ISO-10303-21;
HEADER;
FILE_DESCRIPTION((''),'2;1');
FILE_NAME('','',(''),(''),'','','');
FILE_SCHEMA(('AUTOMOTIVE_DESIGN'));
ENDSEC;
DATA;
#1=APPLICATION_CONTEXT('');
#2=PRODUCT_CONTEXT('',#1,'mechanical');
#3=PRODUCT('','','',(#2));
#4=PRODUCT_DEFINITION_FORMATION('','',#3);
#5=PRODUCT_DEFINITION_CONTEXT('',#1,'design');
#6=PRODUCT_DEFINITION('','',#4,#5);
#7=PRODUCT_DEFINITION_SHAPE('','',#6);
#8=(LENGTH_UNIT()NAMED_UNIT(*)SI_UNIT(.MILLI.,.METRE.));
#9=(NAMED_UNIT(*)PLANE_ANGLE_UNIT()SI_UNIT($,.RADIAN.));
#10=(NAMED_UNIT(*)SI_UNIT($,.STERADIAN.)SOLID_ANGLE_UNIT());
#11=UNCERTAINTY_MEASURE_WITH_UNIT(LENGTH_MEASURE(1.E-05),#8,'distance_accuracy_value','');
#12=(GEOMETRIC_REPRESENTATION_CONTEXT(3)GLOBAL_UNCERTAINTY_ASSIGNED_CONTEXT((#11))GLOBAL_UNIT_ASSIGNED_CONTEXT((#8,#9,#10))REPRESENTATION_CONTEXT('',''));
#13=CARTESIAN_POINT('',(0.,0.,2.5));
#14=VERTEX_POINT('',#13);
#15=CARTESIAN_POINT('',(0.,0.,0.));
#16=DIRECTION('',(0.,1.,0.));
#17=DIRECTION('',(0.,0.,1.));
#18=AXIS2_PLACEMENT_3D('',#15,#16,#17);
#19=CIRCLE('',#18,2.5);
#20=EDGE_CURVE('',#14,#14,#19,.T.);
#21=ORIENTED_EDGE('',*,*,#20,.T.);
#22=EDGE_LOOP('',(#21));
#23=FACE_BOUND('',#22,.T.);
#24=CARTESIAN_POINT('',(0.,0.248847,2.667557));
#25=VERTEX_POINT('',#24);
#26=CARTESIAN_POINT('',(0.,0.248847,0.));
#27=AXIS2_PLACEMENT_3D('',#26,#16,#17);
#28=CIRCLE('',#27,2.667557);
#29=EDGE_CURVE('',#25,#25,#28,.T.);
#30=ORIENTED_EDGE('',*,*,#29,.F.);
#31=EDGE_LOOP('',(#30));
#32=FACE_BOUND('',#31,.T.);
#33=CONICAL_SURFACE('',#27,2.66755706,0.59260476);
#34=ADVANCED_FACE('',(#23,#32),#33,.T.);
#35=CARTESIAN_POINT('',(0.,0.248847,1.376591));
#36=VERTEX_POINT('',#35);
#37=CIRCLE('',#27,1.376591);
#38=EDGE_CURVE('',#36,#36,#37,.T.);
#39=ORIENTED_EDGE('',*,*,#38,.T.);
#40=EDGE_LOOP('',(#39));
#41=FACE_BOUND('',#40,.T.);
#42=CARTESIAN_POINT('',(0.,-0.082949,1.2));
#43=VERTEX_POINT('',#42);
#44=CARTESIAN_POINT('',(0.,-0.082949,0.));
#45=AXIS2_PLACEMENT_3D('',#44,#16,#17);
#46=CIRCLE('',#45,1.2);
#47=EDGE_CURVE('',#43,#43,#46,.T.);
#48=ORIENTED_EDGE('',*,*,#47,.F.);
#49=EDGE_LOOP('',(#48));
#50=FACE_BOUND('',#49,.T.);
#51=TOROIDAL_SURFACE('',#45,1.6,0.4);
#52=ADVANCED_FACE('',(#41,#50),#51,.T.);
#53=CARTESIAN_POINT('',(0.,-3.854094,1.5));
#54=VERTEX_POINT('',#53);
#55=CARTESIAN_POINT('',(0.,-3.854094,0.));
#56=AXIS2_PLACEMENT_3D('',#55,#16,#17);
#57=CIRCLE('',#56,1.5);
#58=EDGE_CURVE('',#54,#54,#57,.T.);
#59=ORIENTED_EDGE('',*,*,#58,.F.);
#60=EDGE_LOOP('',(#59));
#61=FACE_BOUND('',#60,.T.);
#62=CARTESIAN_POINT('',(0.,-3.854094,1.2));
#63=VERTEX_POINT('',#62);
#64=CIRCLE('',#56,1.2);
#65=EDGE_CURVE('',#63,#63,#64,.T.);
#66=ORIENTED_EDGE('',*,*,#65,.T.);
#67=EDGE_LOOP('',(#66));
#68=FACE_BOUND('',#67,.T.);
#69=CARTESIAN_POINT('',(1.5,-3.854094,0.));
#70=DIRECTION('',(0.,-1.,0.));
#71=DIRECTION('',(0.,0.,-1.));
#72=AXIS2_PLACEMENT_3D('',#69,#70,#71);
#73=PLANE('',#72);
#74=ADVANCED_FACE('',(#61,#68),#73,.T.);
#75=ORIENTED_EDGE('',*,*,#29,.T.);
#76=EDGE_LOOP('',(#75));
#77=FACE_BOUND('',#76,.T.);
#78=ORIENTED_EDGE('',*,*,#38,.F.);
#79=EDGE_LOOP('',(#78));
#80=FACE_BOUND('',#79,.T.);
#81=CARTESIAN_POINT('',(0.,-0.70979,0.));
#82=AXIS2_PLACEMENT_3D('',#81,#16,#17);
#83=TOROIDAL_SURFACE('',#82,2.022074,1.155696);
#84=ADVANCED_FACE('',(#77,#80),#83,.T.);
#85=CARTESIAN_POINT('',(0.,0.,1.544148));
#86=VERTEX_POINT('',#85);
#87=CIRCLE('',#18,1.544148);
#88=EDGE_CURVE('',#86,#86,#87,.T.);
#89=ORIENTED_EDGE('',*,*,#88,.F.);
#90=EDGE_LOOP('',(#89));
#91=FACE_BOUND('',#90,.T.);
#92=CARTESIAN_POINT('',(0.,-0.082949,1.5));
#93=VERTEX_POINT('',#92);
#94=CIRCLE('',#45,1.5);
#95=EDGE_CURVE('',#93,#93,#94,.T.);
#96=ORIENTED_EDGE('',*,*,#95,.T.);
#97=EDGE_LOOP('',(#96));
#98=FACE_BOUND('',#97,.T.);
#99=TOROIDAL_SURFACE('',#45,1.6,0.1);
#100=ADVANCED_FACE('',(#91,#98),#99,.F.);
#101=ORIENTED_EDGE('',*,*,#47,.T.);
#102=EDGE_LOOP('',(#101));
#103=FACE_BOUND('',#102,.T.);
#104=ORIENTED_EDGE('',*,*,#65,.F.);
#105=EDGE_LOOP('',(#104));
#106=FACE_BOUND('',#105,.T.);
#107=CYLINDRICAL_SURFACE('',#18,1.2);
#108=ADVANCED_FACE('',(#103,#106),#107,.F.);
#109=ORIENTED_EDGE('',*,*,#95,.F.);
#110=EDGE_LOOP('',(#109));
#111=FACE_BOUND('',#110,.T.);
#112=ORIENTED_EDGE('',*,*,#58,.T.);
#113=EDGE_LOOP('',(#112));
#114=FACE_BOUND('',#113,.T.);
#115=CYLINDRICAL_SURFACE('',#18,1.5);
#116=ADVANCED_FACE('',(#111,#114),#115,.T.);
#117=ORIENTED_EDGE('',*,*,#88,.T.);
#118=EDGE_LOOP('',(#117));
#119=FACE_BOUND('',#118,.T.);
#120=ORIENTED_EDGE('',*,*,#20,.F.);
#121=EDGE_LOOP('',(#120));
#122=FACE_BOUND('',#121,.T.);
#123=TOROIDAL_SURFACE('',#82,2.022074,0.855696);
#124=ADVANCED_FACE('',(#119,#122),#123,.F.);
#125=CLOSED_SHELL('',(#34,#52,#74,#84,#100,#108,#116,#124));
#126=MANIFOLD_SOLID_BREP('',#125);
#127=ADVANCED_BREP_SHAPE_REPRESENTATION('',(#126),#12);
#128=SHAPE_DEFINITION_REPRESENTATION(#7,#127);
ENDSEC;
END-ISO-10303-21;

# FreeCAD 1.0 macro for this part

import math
import FreeCAD as App
import Part
import Sketcher
from FreeCAD import Vector
Q = App.Units.Quantity

doc = App.newDocument("Part")
params = doc.addObject("Spreadsheet::Sheet", "Params")
for row, (alias, value) in enumerate([
    ("sketch1_radius", "0.1 mm"),
    ("sketch1_radius2", "0.4 mm"),
    ("revolution_angle", "360 deg"),
], start=1):
    params.set(f"A{row}", alias)
    params.set(f"B{row}", "=" + value)
    params.setAlias(f"B{row}", alias)

body = doc.addObject("PartDesign::Body", "Body")

# Sketch on XY plane
sketch1 = doc.addObject("Sketcher::SketchObject", "Sketch")
body.addObject(sketch1)
sketch1.AttachmentSupport = (doc.XY_Plane, [""])
sketch1.MapMode = "FlatFace"
sketch1.addGeometry(Part.LineSegment(Vector(1.5, -3.85, 0), Vector(1.5, -0.08, 0)), False)
sketch1.addGeometry(Part.ArcOfCircle(Part.Circle(Vector(1.6, -0.08, 0), Vector(0, 0, 1), 0.1), math.radians(124), math.radians(180)), False)
sketch1.addGeometry(Part.ArcOfCircle(Part.Circle(Vector(2.02, -0.71, 0), Vector(0, 0, 1), 0.86), math.radians(56), math.radians(124)), False)
sketch1.addGeometry(Part.LineSegment(Vector(2.5, 0, 0), Vector(2.67, 0.25, 0)), False)
sketch1.addGeometry(Part.ArcOfCircle(Part.Circle(Vector(2.02, -0.71, 0), Vector(0, 0, 1), 1.16), math.radians(56), math.radians(124)), False)
sketch1.addGeometry(Part.ArcOfCircle(Part.Circle(Vector(1.6, -0.08, 0), Vector(0, 0, 1), 0.4), math.radians(124), math.radians(180)), False)
sketch1.addGeometry(Part.LineSegment(Vector(1.2, -0.08, 0), Vector(1.2, -3.85, 0)), False)
sketch1.addGeometry(Part.LineSegment(Vector(1.2, -3.85, 0), Vector(1.5, -3.85, 0)), False)
sketch1.addConstraint(Sketcher.Constraint("Tangent", 0, 2, 1, 2))
sketch1.addConstraint(Sketcher.Constraint("Tangent", 1, 1, 2, 2))
sketch1.addConstraint(Sketcher.Constraint("Coincident", 2, 1, 3, 1))
sketch1.addConstraint(Sketcher.Constraint("Coincident", 3, 2, 4, 1))
sketch1.addConstraint(Sketcher.Constraint("Tangent", 4, 2, 5, 1))
sketch1.addConstraint(Sketcher.Constraint("Tangent", 5, 2, 6, 1))
sketch1.addConstraint(Sketcher.Constraint("Coincident", 6, 2, 7, 1))
sketch1.addConstraint(Sketcher.Constraint("Coincident", 7, 2, 0, 1))
sketch1.addConstraint(Sketcher.Constraint("Vertical", 0))
sketch1.addConstraint(Sketcher.Constraint("Vertical", 6))
sketch1.addConstraint(Sketcher.Constraint("Horizontal", 7))
sketch1.addConstraint(Sketcher.Constraint("Coincident", 4, 3, 2, 3))
sketch1.addConstraint(Sketcher.Constraint("Coincident", 5, 3, 1, 3))
sketch1.addConstraint(Sketcher.Constraint("PointOnObject", 1, 1, -1))
sketch1.addConstraint(Sketcher.Constraint("PointOnObject", 2, 1, -1))
sketch1.addConstraint(Sketcher.Constraint("Horizontal", 3, 2, 4, 2))
sketch1.addConstraint(Sketcher.Constraint("Radius", 1, Q("0.1 mm")))
sketch1.addConstraint(Sketcher.Constraint("Radius", 5, Q("0.4 mm")))
sketch1.addConstraint(Sketcher.Constraint("DistanceX", -1, 1, 1, 3, Q("1.6 mm")))
sketch1.addConstraint(Sketcher.Constraint("DistanceX", -1, 1, 2, 1, Q("2.5 mm")))
sketch1.addConstraint(Sketcher.Constraint("Radius", 2, Q("0.855696 mm")))
sketch1.addConstraint(Sketcher.Constraint("DistanceY", 0, 1, 0, 2, Q("3.771145 mm")))
sketch1.setExpression("Constraints[16]", "Params.sketch1_radius")
sketch1.setExpression("Constraints[17]", "Params.sketch1_radius2")
revolution = doc.addObject("PartDesign::Revolution", "Revolution")
body.addObject(revolution)
revolution.Profile = sketch1
revolution.ReferenceAxis = (sketch1, ["V_Axis"])
revolution.setExpression("Angle", "Params.revolution_angle")

doc.recompute()
